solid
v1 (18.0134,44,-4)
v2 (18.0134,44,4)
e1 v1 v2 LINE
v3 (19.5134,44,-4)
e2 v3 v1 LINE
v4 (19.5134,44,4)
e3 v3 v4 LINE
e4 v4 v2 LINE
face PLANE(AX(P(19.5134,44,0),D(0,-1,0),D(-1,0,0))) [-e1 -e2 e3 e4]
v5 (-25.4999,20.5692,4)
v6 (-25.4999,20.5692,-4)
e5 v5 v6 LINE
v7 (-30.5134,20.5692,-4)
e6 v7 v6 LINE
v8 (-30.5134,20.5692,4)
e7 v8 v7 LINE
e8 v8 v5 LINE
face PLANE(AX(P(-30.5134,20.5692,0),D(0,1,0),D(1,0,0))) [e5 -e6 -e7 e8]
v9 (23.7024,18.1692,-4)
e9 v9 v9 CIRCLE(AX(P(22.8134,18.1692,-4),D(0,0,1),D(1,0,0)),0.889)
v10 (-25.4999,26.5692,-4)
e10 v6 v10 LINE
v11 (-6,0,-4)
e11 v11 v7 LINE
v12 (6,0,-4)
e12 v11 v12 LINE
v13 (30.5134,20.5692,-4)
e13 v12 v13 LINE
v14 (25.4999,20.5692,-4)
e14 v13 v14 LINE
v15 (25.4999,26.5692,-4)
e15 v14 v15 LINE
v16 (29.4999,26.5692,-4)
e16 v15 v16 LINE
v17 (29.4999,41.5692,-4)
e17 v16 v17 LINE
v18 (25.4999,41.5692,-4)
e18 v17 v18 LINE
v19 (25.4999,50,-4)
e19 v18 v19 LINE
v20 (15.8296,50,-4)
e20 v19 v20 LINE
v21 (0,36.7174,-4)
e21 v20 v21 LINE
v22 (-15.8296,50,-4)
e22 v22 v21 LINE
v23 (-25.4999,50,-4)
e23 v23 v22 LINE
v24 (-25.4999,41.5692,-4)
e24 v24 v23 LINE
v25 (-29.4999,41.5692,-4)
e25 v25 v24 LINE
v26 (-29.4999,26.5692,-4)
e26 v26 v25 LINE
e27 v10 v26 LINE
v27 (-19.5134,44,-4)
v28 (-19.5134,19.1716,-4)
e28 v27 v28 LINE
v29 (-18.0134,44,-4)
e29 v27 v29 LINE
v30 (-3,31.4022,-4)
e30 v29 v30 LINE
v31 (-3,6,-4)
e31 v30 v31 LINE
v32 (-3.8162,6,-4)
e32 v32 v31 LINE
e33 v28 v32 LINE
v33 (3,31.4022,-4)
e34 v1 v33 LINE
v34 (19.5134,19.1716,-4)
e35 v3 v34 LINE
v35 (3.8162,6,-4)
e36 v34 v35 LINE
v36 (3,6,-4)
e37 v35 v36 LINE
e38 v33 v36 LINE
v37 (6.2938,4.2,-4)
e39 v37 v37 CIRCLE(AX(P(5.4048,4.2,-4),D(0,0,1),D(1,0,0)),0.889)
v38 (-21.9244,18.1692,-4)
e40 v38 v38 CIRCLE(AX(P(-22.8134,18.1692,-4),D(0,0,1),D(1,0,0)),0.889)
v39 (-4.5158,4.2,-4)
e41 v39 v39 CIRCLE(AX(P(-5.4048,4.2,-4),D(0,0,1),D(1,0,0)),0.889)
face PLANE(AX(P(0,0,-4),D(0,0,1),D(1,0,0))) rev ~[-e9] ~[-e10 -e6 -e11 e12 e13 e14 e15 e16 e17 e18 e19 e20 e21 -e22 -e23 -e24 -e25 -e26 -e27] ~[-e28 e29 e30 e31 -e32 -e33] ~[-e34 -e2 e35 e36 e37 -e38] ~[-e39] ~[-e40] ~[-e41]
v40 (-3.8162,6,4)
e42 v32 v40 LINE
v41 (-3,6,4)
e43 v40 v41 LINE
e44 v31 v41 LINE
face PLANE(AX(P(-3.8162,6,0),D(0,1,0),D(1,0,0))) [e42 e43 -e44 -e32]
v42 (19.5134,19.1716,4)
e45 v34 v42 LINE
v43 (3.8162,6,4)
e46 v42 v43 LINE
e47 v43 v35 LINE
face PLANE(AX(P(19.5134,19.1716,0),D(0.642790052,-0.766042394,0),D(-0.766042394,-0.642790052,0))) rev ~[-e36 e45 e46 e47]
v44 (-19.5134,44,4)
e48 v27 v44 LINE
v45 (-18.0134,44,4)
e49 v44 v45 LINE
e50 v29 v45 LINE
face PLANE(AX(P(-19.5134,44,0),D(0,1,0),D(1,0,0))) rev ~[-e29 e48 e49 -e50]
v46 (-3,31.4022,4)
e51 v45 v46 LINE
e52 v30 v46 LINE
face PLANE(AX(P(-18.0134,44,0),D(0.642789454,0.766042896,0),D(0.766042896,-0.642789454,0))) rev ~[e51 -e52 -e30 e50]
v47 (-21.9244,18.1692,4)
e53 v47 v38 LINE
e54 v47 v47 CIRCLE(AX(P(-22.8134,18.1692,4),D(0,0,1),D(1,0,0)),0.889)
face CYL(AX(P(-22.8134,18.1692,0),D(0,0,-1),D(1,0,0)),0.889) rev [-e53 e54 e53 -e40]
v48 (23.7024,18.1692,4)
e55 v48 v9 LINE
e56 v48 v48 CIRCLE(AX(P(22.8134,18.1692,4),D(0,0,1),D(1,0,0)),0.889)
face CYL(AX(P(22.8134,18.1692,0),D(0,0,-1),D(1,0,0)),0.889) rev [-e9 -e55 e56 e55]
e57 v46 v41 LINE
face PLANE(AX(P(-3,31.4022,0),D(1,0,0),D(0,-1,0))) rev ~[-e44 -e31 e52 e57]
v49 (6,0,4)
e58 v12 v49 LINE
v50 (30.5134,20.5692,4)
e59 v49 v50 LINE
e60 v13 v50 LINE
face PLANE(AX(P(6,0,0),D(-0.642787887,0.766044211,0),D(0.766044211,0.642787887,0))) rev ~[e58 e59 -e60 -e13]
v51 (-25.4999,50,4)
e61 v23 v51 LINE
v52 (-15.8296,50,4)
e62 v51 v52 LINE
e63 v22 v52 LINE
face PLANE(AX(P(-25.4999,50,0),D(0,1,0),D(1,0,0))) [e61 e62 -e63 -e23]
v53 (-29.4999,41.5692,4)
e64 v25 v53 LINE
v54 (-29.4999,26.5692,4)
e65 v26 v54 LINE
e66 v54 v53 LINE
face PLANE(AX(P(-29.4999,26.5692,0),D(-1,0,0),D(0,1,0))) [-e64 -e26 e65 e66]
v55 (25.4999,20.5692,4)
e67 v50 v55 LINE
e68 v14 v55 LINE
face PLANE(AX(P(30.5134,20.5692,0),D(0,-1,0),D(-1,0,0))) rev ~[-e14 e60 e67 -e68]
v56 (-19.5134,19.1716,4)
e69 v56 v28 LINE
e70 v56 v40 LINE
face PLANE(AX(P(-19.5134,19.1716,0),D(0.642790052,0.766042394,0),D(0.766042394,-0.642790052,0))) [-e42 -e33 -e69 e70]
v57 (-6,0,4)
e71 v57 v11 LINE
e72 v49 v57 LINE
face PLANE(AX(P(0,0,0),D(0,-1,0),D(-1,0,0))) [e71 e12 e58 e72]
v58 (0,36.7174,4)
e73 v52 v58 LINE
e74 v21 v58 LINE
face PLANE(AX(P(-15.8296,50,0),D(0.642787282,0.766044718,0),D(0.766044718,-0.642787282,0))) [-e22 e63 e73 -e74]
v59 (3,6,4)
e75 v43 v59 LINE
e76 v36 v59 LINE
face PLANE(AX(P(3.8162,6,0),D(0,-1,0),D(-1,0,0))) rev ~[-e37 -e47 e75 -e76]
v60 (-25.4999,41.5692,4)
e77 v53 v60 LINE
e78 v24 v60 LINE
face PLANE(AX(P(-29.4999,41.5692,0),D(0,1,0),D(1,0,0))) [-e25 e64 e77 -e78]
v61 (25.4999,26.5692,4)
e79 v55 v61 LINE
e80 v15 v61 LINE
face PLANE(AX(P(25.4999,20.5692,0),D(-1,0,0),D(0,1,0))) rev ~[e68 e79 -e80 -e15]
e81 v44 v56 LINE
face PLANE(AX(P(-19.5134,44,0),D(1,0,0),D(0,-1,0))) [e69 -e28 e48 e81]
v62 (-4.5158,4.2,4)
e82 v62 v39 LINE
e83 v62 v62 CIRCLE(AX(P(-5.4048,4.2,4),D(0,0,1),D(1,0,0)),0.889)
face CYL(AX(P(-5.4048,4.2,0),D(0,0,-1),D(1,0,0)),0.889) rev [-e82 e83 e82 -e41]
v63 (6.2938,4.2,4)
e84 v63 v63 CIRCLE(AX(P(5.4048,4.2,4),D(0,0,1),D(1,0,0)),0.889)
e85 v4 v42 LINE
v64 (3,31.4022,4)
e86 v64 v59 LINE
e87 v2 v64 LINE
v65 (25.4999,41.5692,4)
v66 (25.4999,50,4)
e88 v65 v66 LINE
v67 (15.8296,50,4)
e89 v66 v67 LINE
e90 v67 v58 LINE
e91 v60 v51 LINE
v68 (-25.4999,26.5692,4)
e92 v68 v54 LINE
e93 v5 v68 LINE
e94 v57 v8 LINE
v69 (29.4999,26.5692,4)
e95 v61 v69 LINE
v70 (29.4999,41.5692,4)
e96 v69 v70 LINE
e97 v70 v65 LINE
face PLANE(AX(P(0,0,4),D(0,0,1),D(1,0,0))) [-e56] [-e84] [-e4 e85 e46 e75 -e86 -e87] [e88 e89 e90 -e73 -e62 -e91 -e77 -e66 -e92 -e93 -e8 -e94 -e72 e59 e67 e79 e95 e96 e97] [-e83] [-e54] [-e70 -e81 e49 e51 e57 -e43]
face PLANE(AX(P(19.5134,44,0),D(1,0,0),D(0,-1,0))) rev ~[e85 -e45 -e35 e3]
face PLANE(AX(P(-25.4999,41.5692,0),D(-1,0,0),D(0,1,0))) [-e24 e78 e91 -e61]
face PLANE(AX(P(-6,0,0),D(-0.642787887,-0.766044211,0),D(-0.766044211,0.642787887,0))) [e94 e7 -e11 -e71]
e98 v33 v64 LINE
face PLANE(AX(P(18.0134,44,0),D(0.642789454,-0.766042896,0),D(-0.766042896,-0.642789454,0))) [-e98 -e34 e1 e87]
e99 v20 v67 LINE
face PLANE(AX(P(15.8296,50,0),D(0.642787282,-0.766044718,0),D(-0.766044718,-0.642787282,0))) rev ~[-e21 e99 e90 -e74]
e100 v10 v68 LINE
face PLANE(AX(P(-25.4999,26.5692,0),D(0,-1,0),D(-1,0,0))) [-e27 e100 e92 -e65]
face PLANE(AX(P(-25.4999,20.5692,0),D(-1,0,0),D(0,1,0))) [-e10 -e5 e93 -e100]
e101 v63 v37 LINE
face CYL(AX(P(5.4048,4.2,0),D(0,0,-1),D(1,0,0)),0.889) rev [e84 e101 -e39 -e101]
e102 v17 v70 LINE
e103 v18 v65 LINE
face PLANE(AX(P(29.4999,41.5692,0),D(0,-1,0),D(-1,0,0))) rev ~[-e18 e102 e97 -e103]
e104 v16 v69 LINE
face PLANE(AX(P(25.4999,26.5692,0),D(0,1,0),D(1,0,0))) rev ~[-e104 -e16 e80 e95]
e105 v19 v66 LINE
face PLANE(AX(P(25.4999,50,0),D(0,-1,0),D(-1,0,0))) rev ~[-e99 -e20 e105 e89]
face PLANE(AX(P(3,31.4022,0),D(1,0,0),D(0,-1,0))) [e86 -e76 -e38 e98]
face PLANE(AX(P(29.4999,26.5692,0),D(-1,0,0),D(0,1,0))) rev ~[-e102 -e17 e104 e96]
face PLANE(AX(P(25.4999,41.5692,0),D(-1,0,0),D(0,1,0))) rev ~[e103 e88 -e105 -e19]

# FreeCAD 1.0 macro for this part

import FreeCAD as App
import Part
import Sketcher

V = App.Vector
Q = App.Units.Quantity

doc = App.newDocument("Part")
body = doc.addObject("PartDesign::Body", "Body")

sketch1 = body.newObject("Sketcher::SketchObject", "Sketch")
sketch1.AttachmentSupport = (doc.getObject("XY_Plane"), [""])
sketch1.MapMode = "FlatFace"
sketch1.addGeometry([
    Part.LineSegment(V(-6, 0, 0), V(6, 0, 0)),
    Part.LineSegment(V(6, 0, 0), V(30.5, 20.6, 0)),
    Part.LineSegment(V(30.5, 20.6, 0), V(25.5, 20.6, 0)),
    Part.LineSegment(V(25.5, 20.6, 0), V(25.5, 26.6, 0)),
    Part.LineSegment(V(25.5, 26.6, 0), V(29.5, 26.6, 0)),
    Part.LineSegment(V(29.5, 26.6, 0), V(29.5, 41.6, 0)),
    Part.LineSegment(V(29.5, 41.6, 0), V(25.5, 41.6, 0)),
    Part.LineSegment(V(25.5, 41.6, 0), V(25.5, 50, 0)),
    Part.LineSegment(V(25.5, 50, 0), V(15.8, 50, 0)),
    Part.LineSegment(V(15.8, 50, 0), V(0, 36.7, 0)),
    Part.LineSegment(V(0, 36.7, 0), V(-15.8, 50, 0)),
    Part.LineSegment(V(-15.8, 50, 0), V(-25.5, 50, 0)),
    Part.LineSegment(V(-25.5, 50, 0), V(-25.5, 41.6, 0)),
    Part.LineSegment(V(-25.5, 41.6, 0), V(-29.5, 41.6, 0)),
    Part.LineSegment(V(-29.5, 41.6, 0), V(-29.5, 26.6, 0)),
    Part.LineSegment(V(-29.5, 26.6, 0), V(-25.5, 26.6, 0)),
    Part.LineSegment(V(-25.5, 26.6, 0), V(-25.5, 20.6, 0)),
    Part.LineSegment(V(-25.5, 20.6, 0), V(-30.5, 20.6, 0)),
    Part.LineSegment(V(-30.5, 20.6, 0), V(-6, 0, 0)),
    Part.Circle(V(-5.4, 4.2, 0), V(0, 0, 1), 0.9),
    Part.Circle(V(-22.8, 18.2, 0), V(0, 0, 1), 0.9),
    Part.LineSegment(V(-19.5, 19.2, 0), V(-19.5, 44, 0)),
    Part.LineSegment(V(-19.5, 44, 0), V(-18, 44, 0)),
    Part.LineSegment(V(-18, 44, 0), V(-3, 31.4, 0)),
    Part.LineSegment(V(-3, 31.4, 0), V(-3, 6, 0)),
    Part.LineSegment(V(-3, 6, 0), V(-3.8, 6, 0)),
    Part.LineSegment(V(-3.8, 6, 0), V(-19.5, 19.2, 0)),
    Part.LineSegment(V(3.8, 6, 0), V(3, 6, 0)),
    Part.LineSegment(V(3, 6, 0), V(3, 31.4, 0)),
    Part.LineSegment(V(3, 31.4, 0), V(18, 44, 0)),
    Part.LineSegment(V(18, 44, 0), V(19.5, 44, 0)),
    Part.LineSegment(V(19.5, 44, 0), V(19.5, 19.2, 0)),
    Part.LineSegment(V(19.5, 19.2, 0), V(3.8, 6, 0)),
    Part.Circle(V(5.4, 4.2, 0), V(0, 0, 1), 0.9),
    Part.Circle(V(22.8, 18.2, 0), V(0, 0, 1), 0.9),
], False)
sketch1.addConstraint([
    Sketcher.Constraint("Coincident", 0, 2, 1, 1),
    Sketcher.Constraint("Coincident", 1, 2, 2, 1),
    Sketcher.Constraint("Coincident", 2, 2, 3, 1),
    Sketcher.Constraint("Coincident", 3, 2, 4, 1),
    Sketcher.Constraint("Coincident", 4, 2, 5, 1),
    Sketcher.Constraint("Coincident", 5, 2, 6, 1),
    Sketcher.Constraint("Coincident", 6, 2, 7, 1),
    Sketcher.Constraint("Coincident", 7, 2, 8, 1),
    Sketcher.Constraint("Coincident", 8, 2, 9, 1),
    Sketcher.Constraint("Coincident", 9, 2, 10, 1),
    Sketcher.Constraint("Coincident", 10, 2, 11, 1),
    Sketcher.Constraint("Coincident", 11, 2, 12, 1),
    Sketcher.Constraint("Coincident", 12, 2, 13, 1),
    Sketcher.Constraint("Coincident", 13, 2, 14, 1),
    Sketcher.Constraint("Coincident", 14, 2, 15, 1),
    Sketcher.Constraint("Coincident", 15, 2, 16, 1),
    Sketcher.Constraint("Coincident", 16, 2, 17, 1),
    Sketcher.Constraint("Coincident", 17, 2, 18, 1),
    Sketcher.Constraint("Coincident", 18, 2, 0, 1),
    Sketcher.Constraint("Coincident", 21, 2, 22, 1),
    Sketcher.Constraint("Coincident", 22, 2, 23, 1),
    Sketcher.Constraint("Coincident", 23, 2, 24, 1),
    Sketcher.Constraint("Coincident", 24, 2, 25, 1),
    Sketcher.Constraint("Coincident", 25, 2, 26, 1),
    Sketcher.Constraint("Coincident", 26, 2, 21, 1),
    Sketcher.Constraint("Coincident", 27, 2, 28, 1),
    Sketcher.Constraint("Coincident", 28, 2, 29, 1),
    Sketcher.Constraint("Coincident", 29, 2, 30, 1),
    Sketcher.Constraint("Coincident", 30, 2, 31, 1),
    Sketcher.Constraint("Coincident", 31, 2, 32, 1),
    Sketcher.Constraint("Coincident", 32, 2, 27, 1),
    Sketcher.Constraint("Horizontal", 0),
    Sketcher.Constraint("Horizontal", 2),
    Sketcher.Constraint("Vertical", 3),
    Sketcher.Constraint("Horizontal", 4),
    Sketcher.Constraint("Vertical", 5),
    Sketcher.Constraint("Horizontal", 6),
    Sketcher.Constraint("Vertical", 7),
    Sketcher.Constraint("Horizontal", 8),
    Sketcher.Constraint("Horizontal", 11),
    Sketcher.Constraint("Vertical", 12),
    Sketcher.Constraint("Horizontal", 13),
    Sketcher.Constraint("Vertical", 14),
    Sketcher.Constraint("Horizontal", 15),
    Sketcher.Constraint("Vertical", 16),
    Sketcher.Constraint("Horizontal", 17),
    Sketcher.Constraint("Vertical", 21),
    Sketcher.Constraint("Horizontal", 22),
    Sketcher.Constraint("Vertical", 24),
    Sketcher.Constraint("Horizontal", 25),
    Sketcher.Constraint("Horizontal", 27),
    Sketcher.Constraint("Vertical", 28),
    Sketcher.Constraint("Horizontal", 30),
    Sketcher.Constraint("Vertical", 31),
    Sketcher.Constraint("Equal", 19, 20),
    Sketcher.Constraint("Equal", 20, 33),
    Sketcher.Constraint("Equal", 33, 34),
    Sketcher.Constraint("Symmetric", 0, 2, 18, 2, -1, 1),
    Sketcher.Constraint("Symmetric", 19, 3, 33, 3, -2),
    Sketcher.Constraint("Symmetric", 20, 3, 34, 3, -2),
    Sketcher.Constraint("Symmetric", 8, 2, 10, 2, -2),
    Sketcher.Constraint("Symmetric", 6, 2, 12, 2, -2),
    Sketcher.Constraint("Symmetric", 4, 2, 14, 2, -2),
    Sketcher.Constraint("Symmetric", 2, 2, 16, 2, -2),
    Sketcher.Constraint("Symmetric", 24, 2, 27, 2, -2),
    Sketcher.Constraint("Symmetric", 22, 2, 29, 2, -2),
    Sketcher.Constraint("Symmetric", 26, 2, 31, 2, -2),
    Sketcher.Constraint("PointOnObject", 9, 2, -2),
    Sketcher.Constraint("Parallel", 1, 9),
    Sketcher.Constraint("Parallel", 10, 18),
    Sketcher.Constraint("Parallel", 18, 23),
    Sketcher.Constraint("Parallel", 23, 26),
    Sketcher.Constraint("Parallel", 9, 29),
    Sketcher.Constraint("Parallel", 29, 32),
    Sketcher.Constraint("Vertical", 3, 2, 6, 2),
    Sketcher.Constraint("DistanceX", 4, 1, 4, 2, Q("4 mm")),
    Sketcher.Constraint("DistanceY", 3, 1, 3, 2, Q("6 mm")),
    Sketcher.Constraint("DistanceY", 5, 1, 5, 2, Q("15 mm")),
    Sketcher.Constraint("Angle", 1, Q("40 deg")),
    Sketcher.Constraint("Distance", 1, Q("32 mm")),
    Sketcher.Constraint("Diameter", 19, Q("1.778 mm")),
    Sketcher.Constraint("DistanceX", 22, 1, 22, 2, Q("1.5 mm")),
    Sketcher.Constraint("DistanceX", -1, 1, 0, 2, Q("6 mm")),
    Sketcher.Constraint("DistanceY", -1, 1, 7, 2, Q("50 mm")),
    Sketcher.Constraint("DistanceY", -1, 1, 24, 2, Q("6 mm")),
    Sketcher.Constraint("DistanceY", 21, 2, 10, 2, Q("6 mm")),
    Sketcher.Constraint("DistanceX", 24, 2, 27, 2, Q("6 mm")),
    Sketcher.Constraint("DistanceY", -1, 1, 19, 3, Q("4.2 mm")),
    Sketcher.Constraint("DistanceY", 34, 3, 1, 2, Q("2.4 mm")),
    Sketcher.Constraint("DistanceX", 20, 3, 26, 2, Q("3.3 mm")),
    Sketcher.Constraint("DistanceX", 2, 2, 2, 1, Q("5.0135 mm")),
    Sketcher.Constraint("DistanceX", 17, 2, 26, 2, Q("11 mm")),
    Sketcher.Constraint("Distance", 9, Q("20.664 mm")),
    Sketcher.Constraint("DistanceX", 25, 2, 25, 1, Q("0.8162 mm")),
    Sketcher.Constraint("DistanceX", 33, 3, 2, 2, Q("20.095 mm")),
])
pad1 = body.newObject("PartDesign::Pad", "Pad")
pad1.Profile = sketch1
pad1.Length = 8
pad1.Midplane = True

doc.recompute()
